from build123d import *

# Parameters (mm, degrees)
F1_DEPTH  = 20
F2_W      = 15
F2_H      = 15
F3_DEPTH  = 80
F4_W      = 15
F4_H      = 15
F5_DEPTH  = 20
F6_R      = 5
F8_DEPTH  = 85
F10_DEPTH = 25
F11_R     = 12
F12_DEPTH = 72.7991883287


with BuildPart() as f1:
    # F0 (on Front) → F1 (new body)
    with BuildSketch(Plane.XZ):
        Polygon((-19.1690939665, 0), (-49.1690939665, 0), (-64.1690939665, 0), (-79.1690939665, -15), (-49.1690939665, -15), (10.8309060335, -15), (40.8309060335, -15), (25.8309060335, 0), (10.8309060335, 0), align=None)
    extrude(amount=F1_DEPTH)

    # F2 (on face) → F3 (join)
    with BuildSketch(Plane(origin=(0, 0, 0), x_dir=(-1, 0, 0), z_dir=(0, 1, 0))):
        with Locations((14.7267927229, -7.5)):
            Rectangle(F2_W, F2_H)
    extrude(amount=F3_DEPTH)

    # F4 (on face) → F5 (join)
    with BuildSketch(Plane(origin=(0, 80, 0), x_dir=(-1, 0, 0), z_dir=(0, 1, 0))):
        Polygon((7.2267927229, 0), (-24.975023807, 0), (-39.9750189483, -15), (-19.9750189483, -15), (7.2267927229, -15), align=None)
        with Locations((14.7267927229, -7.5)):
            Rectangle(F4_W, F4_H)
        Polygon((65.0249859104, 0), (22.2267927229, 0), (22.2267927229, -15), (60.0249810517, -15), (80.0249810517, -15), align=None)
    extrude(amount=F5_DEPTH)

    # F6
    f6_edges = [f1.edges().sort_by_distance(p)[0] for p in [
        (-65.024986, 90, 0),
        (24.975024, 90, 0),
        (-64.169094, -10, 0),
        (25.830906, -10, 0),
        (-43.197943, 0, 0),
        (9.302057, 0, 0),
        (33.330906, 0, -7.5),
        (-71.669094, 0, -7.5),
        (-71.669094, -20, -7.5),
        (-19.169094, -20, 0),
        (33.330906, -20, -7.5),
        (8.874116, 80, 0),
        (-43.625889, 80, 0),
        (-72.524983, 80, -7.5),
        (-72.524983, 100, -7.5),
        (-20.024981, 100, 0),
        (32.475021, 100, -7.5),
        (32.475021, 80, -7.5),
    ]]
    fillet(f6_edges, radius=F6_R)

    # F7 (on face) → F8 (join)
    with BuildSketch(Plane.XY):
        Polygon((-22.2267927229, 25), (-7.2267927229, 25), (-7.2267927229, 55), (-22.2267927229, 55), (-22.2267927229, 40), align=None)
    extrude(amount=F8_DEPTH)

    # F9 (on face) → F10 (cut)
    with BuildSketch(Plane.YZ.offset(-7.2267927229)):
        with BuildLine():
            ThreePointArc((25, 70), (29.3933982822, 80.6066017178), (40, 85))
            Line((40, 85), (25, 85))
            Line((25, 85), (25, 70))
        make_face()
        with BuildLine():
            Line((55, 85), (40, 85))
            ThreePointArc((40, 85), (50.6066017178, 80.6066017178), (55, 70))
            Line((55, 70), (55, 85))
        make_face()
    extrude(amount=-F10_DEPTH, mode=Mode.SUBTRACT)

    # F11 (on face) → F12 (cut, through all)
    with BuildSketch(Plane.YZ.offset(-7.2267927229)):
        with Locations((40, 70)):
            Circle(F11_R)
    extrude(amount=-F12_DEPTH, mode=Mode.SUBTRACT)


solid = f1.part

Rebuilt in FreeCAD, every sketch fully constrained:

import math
import FreeCAD as App
import Part
import Sketcher

V = App.Vector


def edges_at(feature, points):
    """Names of the edges that pass closest to the given points."""
    edges = feature.Shape.Edges
    near = lambda p: min(range(len(edges)), key=lambda i: edges[i].distToShape(Part.Vertex(*p))[0])
    return sorted({f"Edge{near(p) + 1}" for p in points})


def add_polygon(sketch, points):
    """Adds a closed chain of lines whose ends are joined by coincident constraints."""
    first, n = sketch.GeometryCount, len(points)
    for a, b in zip(points, points[1:] + points[:1]):
        sketch.addGeometry(Part.LineSegment(App.Vector(*a, 0), App.Vector(*b, 0)), False)
    for i in range(n):
        sketch.addConstraint(Sketcher.Constraint("Coincident", first + i, 2, first + (i + 1) % n, 1))

doc = App.newDocument("Part")
params = doc.addObject("Spreadsheet::Sheet", "Params")
for row, (alias, value) in enumerate([
    ("sketch1_width", "120 mm"),
    ("sketch1_width2", "90 mm"),
    ("pad1_length", "20 mm"),
    ("sketch2_width", "15 mm"),
    ("pad2_length", "80 mm"),
    ("sketch3_width", "120 mm"),
    ("pad3_length", "20 mm"),
    ("fillet_radius", "5 mm"),
    ("sketch4_width", "15 mm"),
    ("sketch4_height", "30 mm"),
    ("pad4_length", "85 mm"),
    ("sketch5_radius", "15 mm"),
    ("pocket1_length", "25 mm"),
    ("sketch6_diameter", "24 mm"),
], start=1):
    params.set(f"A{row}", alias)
    params.set(f"B{row}", "=" + value)
    params.setAlias(f"B{row}", alias)

body = doc.addObject("PartDesign::Body", "Body")

sketch1 = body.newObject("Sketcher::SketchObject", "Sketch")
sketch1.AttachmentSupport = (doc.getObject("XZ_Plane"), [""])
sketch1.MapMode = "FlatFace"
add_polygon(sketch1, [(-64, 0), (-79, -15), (41, -15), (26, 0)])
sketch1.addConstraint([
    Sketcher.Constraint("Horizontal", 1),
    Sketcher.Constraint("Horizontal", 3),
    Sketcher.Constraint("PointOnObject", 2, 2, -1),
    Sketcher.Constraint("Perpendicular", 0, 2),
    Sketcher.Constraint("Equal", 0, 2),
    Sketcher.Constraint("DistanceX", 1, 1, 1, 2, 120.0),
    Sketcher.Constraint("DistanceX", 3, 2, 3, 1, 90.0),
    Sketcher.Constraint("DistanceX", 0, 2, -1, 1, 79.169094),
])
sketch1.setExpression("Constraints[9]", "Params.sketch1_width")
sketch1.setExpression("Constraints[10]", "Params.sketch1_width2")
pad1 = body.newObject("PartDesign::Pad", "Pad")
pad1.Profile = sketch1
pad1.setExpression("Length", "Params.pad1_length")

sketch2 = body.newObject("Sketcher::SketchObject", "Sketch001")
sketch2.AttachmentSupport = (doc.getObject("XZ_Plane"), [""])
sketch2.MapMode = "FlatFace"
add_polygon(sketch2, [(-7, 0), (-7, -15), (-22, -15), (-22, 0)])
sketch2.addConstraint([
    Sketcher.Constraint("Vertical", 0),
    Sketcher.Constraint("Horizontal", 1),
    Sketcher.Constraint("Vertical", 2),
    Sketcher.Constraint("Horizontal", 3),
    Sketcher.Constraint("PointOnObject", 2, 2, -1),
    Sketcher.Constraint("Equal", 3, 0),
    Sketcher.Constraint("DistanceX", 1, 2, 1, 1, 15.0),
    Sketcher.Constraint("DistanceX", 0, 2, -1, 1, 7.226793),
])
sketch2.setExpression("Constraints[10]", "Params.sketch2_width")
pad2 = body.newObject("PartDesign::Pad", "Pad001")
pad2.Profile = sketch2
pad2.setExpression("Length", "Params.pad2_length")
pad2.Reversed = True

sketch3 = body.newObject("Sketcher::SketchObject", "Sketch002")
sketch3.AttachmentSupport = (doc.getObject("XZ_Plane"), [""])
sketch3.MapMode = "FlatFace"
sketch3.AttachmentOffset = App.Placement(V(0, 0, -80), App.Rotation())
add_polygon(sketch3, [(25, 0), (40, -15), (-80, -15), (-65, 0)])
sketch3.addConstraint([
    Sketcher.Constraint("Horizontal", 1),
    Sketcher.Constraint("Horizontal", 3),
    Sketcher.Constraint("PointOnObject", 2, 2, -1),
    Sketcher.Constraint("Perpendicular", 0, 2),
    Sketcher.Constraint("Equal", 0, 2),
    Sketcher.Constraint("DistanceX", 1, 2, 1, 1, 120.0),
    Sketcher.Constraint("DistanceY", 0, 2, -1, 1, 15.0),
    Sketcher.Constraint("DistanceX", -1, 1, 0, 2, 39.975019),
])
sketch3.setExpression("Constraints[9]", "Params.sketch3_width")
pad3 = body.newObject("PartDesign::Pad", "Pad002")
pad3.Profile = sketch3
pad3.setExpression("Length", "Params.pad3_length")
pad3.Reversed = True
doc.recompute()

fillet = body.newObject("PartDesign::Fillet", "Fillet")
fillet.Base = (pad3, edges_at(pad3, [
    (-65.025, 90, 0),
    (24.975, 90, 0),
    (-64.169, -10, 0),
    (25.831, -10, 0),
    (-43.198, 0, 0),
    (9.302, 0, 0),
    (33.331, 0, -7.5),
    (-71.669, 0, -7.5),
    (-71.669, -20, -7.5),
    (-19.169, -20, 0),
    (33.331, -20, -7.5),
    (8.874, 80, 0),
    (-43.626, 80, 0),
    (-72.525, 80, -7.5),
    (-72.525, 100, -7.5),
    (-20.025, 100, 0),
    (32.475, 100, -7.5),
    (32.475, 80, -7.5),
]))
fillet.setExpression("Radius", "Params.fillet_radius")

sketch4 = body.newObject("Sketcher::SketchObject", "Sketch003")
sketch4.AttachmentSupport = (doc.getObject("XY_Plane"), [""])
sketch4.MapMode = "FlatFace"
add_polygon(sketch4, [(-22, 25), (-7, 25), (-7, 55), (-22, 55)])
sketch4.addConstraint([
    Sketcher.Constraint("Horizontal", 0),
    Sketcher.Constraint("Vertical", 1),
    Sketcher.Constraint("Horizontal", 2),
    Sketcher.Constraint("Vertical", 3),
    Sketcher.Constraint("DistanceX", 0, 1, 0, 2, 15.0),
    Sketcher.Constraint("DistanceY", 1, 1, 1, 2, 30.0),
    Sketcher.Constraint("DistanceY", -1, 1, 0, 2, 25.0),
    Sketcher.Constraint("DistanceX", 0, 2, -1, 1, 7.226793),
])
sketch4.setExpression("Constraints[8]", "Params.sketch4_width")
sketch4.setExpression("Constraints[9]", "Params.sketch4_height")
pad4 = body.newObject("PartDesign::Pad", "Pad003")
pad4.Profile = sketch4
pad4.setExpression("Length", "Params.pad4_length")

sketch5 = body.newObject("Sketcher::SketchObject", "Sketch004")
sketch5.AttachmentSupport = (doc.getObject("YZ_Plane"), [""])
sketch5.MapMode = "FlatFace"
sketch5.AttachmentOffset = App.Placement(V(0, 0, -7.226793), App.Rotation())
sketch5.addGeometry([
    Part.ArcOfCircle(Part.Circle(V(40, 70, 0), V(0, 0, 1), 15), math.radians(90), math.radians(180)),
    Part.LineSegment(V(40, 85, 0), V(25, 85, 0)),
    Part.LineSegment(V(25, 85, 0), V(25, 70, 0)),
    Part.LineSegment(V(55, 85, 0), V(40, 85, 0)),
    Part.ArcOfCircle(Part.Circle(V(40, 70, 0), V(0, 0, 1), 15), math.radians(0), math.radians(90)),
    Part.LineSegment(V(55, 70, 0), V(55, 85, 0)),
], False)
sketch5.addConstraint([
    Sketcher.Constraint("Tangent", 0, 1, 1, 1),
    Sketcher.Constraint("Coincident", 1, 2, 2, 1),
    Sketcher.Constraint("Tangent", 2, 2, 0, 2),
    Sketcher.Constraint("Tangent", 3, 2, 4, 2),
    Sketcher.Constraint("Tangent", 4, 1, 5, 1),
    Sketcher.Constraint("Coincident", 5, 2, 3, 1),
    Sketcher.Constraint("Horizontal", 1),
    Sketcher.Constraint("Vertical", 2),
    Sketcher.Constraint("Horizontal", 3),
    Sketcher.Constraint("Vertical", 5),
    Sketcher.Constraint("Coincident", 4, 3, 0, 3),
    Sketcher.Constraint("Equal", 0, 4),
    Sketcher.Constraint("Radius", 0, 15.0),
    Sketcher.Constraint("DistanceX", -1, 1, 0, 3, 40.0),
    Sketcher.Constraint("DistanceY", -1, 1, 0, 3, 70.0),
])
sketch5.setExpression("Constraints[12]", "Params.sketch5_radius")
pocket1 = body.newObject("PartDesign::Pocket", "Pocket")
pocket1.Profile = sketch5
pocket1.setExpression("Length", "Params.pocket1_length")

sketch6 = body.newObject("Sketcher::SketchObject", "Sketch005")
sketch6.AttachmentSupport = (doc.getObject("YZ_Plane"), [""])
sketch6.MapMode = "FlatFace"
sketch6.AttachmentOffset = App.Placement(V(0, 0, -7.226793), App.Rotation())
sketch6.addGeometry(Part.Circle(V(40, 70, 0), V(0, 0, 1), 12), False)
sketch6.addConstraint([
    Sketcher.Constraint("Diameter", 0, 24.0),
    Sketcher.Constraint("DistanceX", -1, 1, 0, 3, 40.0),
    Sketcher.Constraint("DistanceY", -1, 1, 0, 3, 70.0),
])
sketch6.setExpression("Constraints[0]", "Params.sketch6_diameter")
pocket2 = body.newObject("PartDesign::Pocket", "Pocket001")
pocket2.Profile = sketch6
pocket2.Type = "ThroughAll"

doc.recompute()
